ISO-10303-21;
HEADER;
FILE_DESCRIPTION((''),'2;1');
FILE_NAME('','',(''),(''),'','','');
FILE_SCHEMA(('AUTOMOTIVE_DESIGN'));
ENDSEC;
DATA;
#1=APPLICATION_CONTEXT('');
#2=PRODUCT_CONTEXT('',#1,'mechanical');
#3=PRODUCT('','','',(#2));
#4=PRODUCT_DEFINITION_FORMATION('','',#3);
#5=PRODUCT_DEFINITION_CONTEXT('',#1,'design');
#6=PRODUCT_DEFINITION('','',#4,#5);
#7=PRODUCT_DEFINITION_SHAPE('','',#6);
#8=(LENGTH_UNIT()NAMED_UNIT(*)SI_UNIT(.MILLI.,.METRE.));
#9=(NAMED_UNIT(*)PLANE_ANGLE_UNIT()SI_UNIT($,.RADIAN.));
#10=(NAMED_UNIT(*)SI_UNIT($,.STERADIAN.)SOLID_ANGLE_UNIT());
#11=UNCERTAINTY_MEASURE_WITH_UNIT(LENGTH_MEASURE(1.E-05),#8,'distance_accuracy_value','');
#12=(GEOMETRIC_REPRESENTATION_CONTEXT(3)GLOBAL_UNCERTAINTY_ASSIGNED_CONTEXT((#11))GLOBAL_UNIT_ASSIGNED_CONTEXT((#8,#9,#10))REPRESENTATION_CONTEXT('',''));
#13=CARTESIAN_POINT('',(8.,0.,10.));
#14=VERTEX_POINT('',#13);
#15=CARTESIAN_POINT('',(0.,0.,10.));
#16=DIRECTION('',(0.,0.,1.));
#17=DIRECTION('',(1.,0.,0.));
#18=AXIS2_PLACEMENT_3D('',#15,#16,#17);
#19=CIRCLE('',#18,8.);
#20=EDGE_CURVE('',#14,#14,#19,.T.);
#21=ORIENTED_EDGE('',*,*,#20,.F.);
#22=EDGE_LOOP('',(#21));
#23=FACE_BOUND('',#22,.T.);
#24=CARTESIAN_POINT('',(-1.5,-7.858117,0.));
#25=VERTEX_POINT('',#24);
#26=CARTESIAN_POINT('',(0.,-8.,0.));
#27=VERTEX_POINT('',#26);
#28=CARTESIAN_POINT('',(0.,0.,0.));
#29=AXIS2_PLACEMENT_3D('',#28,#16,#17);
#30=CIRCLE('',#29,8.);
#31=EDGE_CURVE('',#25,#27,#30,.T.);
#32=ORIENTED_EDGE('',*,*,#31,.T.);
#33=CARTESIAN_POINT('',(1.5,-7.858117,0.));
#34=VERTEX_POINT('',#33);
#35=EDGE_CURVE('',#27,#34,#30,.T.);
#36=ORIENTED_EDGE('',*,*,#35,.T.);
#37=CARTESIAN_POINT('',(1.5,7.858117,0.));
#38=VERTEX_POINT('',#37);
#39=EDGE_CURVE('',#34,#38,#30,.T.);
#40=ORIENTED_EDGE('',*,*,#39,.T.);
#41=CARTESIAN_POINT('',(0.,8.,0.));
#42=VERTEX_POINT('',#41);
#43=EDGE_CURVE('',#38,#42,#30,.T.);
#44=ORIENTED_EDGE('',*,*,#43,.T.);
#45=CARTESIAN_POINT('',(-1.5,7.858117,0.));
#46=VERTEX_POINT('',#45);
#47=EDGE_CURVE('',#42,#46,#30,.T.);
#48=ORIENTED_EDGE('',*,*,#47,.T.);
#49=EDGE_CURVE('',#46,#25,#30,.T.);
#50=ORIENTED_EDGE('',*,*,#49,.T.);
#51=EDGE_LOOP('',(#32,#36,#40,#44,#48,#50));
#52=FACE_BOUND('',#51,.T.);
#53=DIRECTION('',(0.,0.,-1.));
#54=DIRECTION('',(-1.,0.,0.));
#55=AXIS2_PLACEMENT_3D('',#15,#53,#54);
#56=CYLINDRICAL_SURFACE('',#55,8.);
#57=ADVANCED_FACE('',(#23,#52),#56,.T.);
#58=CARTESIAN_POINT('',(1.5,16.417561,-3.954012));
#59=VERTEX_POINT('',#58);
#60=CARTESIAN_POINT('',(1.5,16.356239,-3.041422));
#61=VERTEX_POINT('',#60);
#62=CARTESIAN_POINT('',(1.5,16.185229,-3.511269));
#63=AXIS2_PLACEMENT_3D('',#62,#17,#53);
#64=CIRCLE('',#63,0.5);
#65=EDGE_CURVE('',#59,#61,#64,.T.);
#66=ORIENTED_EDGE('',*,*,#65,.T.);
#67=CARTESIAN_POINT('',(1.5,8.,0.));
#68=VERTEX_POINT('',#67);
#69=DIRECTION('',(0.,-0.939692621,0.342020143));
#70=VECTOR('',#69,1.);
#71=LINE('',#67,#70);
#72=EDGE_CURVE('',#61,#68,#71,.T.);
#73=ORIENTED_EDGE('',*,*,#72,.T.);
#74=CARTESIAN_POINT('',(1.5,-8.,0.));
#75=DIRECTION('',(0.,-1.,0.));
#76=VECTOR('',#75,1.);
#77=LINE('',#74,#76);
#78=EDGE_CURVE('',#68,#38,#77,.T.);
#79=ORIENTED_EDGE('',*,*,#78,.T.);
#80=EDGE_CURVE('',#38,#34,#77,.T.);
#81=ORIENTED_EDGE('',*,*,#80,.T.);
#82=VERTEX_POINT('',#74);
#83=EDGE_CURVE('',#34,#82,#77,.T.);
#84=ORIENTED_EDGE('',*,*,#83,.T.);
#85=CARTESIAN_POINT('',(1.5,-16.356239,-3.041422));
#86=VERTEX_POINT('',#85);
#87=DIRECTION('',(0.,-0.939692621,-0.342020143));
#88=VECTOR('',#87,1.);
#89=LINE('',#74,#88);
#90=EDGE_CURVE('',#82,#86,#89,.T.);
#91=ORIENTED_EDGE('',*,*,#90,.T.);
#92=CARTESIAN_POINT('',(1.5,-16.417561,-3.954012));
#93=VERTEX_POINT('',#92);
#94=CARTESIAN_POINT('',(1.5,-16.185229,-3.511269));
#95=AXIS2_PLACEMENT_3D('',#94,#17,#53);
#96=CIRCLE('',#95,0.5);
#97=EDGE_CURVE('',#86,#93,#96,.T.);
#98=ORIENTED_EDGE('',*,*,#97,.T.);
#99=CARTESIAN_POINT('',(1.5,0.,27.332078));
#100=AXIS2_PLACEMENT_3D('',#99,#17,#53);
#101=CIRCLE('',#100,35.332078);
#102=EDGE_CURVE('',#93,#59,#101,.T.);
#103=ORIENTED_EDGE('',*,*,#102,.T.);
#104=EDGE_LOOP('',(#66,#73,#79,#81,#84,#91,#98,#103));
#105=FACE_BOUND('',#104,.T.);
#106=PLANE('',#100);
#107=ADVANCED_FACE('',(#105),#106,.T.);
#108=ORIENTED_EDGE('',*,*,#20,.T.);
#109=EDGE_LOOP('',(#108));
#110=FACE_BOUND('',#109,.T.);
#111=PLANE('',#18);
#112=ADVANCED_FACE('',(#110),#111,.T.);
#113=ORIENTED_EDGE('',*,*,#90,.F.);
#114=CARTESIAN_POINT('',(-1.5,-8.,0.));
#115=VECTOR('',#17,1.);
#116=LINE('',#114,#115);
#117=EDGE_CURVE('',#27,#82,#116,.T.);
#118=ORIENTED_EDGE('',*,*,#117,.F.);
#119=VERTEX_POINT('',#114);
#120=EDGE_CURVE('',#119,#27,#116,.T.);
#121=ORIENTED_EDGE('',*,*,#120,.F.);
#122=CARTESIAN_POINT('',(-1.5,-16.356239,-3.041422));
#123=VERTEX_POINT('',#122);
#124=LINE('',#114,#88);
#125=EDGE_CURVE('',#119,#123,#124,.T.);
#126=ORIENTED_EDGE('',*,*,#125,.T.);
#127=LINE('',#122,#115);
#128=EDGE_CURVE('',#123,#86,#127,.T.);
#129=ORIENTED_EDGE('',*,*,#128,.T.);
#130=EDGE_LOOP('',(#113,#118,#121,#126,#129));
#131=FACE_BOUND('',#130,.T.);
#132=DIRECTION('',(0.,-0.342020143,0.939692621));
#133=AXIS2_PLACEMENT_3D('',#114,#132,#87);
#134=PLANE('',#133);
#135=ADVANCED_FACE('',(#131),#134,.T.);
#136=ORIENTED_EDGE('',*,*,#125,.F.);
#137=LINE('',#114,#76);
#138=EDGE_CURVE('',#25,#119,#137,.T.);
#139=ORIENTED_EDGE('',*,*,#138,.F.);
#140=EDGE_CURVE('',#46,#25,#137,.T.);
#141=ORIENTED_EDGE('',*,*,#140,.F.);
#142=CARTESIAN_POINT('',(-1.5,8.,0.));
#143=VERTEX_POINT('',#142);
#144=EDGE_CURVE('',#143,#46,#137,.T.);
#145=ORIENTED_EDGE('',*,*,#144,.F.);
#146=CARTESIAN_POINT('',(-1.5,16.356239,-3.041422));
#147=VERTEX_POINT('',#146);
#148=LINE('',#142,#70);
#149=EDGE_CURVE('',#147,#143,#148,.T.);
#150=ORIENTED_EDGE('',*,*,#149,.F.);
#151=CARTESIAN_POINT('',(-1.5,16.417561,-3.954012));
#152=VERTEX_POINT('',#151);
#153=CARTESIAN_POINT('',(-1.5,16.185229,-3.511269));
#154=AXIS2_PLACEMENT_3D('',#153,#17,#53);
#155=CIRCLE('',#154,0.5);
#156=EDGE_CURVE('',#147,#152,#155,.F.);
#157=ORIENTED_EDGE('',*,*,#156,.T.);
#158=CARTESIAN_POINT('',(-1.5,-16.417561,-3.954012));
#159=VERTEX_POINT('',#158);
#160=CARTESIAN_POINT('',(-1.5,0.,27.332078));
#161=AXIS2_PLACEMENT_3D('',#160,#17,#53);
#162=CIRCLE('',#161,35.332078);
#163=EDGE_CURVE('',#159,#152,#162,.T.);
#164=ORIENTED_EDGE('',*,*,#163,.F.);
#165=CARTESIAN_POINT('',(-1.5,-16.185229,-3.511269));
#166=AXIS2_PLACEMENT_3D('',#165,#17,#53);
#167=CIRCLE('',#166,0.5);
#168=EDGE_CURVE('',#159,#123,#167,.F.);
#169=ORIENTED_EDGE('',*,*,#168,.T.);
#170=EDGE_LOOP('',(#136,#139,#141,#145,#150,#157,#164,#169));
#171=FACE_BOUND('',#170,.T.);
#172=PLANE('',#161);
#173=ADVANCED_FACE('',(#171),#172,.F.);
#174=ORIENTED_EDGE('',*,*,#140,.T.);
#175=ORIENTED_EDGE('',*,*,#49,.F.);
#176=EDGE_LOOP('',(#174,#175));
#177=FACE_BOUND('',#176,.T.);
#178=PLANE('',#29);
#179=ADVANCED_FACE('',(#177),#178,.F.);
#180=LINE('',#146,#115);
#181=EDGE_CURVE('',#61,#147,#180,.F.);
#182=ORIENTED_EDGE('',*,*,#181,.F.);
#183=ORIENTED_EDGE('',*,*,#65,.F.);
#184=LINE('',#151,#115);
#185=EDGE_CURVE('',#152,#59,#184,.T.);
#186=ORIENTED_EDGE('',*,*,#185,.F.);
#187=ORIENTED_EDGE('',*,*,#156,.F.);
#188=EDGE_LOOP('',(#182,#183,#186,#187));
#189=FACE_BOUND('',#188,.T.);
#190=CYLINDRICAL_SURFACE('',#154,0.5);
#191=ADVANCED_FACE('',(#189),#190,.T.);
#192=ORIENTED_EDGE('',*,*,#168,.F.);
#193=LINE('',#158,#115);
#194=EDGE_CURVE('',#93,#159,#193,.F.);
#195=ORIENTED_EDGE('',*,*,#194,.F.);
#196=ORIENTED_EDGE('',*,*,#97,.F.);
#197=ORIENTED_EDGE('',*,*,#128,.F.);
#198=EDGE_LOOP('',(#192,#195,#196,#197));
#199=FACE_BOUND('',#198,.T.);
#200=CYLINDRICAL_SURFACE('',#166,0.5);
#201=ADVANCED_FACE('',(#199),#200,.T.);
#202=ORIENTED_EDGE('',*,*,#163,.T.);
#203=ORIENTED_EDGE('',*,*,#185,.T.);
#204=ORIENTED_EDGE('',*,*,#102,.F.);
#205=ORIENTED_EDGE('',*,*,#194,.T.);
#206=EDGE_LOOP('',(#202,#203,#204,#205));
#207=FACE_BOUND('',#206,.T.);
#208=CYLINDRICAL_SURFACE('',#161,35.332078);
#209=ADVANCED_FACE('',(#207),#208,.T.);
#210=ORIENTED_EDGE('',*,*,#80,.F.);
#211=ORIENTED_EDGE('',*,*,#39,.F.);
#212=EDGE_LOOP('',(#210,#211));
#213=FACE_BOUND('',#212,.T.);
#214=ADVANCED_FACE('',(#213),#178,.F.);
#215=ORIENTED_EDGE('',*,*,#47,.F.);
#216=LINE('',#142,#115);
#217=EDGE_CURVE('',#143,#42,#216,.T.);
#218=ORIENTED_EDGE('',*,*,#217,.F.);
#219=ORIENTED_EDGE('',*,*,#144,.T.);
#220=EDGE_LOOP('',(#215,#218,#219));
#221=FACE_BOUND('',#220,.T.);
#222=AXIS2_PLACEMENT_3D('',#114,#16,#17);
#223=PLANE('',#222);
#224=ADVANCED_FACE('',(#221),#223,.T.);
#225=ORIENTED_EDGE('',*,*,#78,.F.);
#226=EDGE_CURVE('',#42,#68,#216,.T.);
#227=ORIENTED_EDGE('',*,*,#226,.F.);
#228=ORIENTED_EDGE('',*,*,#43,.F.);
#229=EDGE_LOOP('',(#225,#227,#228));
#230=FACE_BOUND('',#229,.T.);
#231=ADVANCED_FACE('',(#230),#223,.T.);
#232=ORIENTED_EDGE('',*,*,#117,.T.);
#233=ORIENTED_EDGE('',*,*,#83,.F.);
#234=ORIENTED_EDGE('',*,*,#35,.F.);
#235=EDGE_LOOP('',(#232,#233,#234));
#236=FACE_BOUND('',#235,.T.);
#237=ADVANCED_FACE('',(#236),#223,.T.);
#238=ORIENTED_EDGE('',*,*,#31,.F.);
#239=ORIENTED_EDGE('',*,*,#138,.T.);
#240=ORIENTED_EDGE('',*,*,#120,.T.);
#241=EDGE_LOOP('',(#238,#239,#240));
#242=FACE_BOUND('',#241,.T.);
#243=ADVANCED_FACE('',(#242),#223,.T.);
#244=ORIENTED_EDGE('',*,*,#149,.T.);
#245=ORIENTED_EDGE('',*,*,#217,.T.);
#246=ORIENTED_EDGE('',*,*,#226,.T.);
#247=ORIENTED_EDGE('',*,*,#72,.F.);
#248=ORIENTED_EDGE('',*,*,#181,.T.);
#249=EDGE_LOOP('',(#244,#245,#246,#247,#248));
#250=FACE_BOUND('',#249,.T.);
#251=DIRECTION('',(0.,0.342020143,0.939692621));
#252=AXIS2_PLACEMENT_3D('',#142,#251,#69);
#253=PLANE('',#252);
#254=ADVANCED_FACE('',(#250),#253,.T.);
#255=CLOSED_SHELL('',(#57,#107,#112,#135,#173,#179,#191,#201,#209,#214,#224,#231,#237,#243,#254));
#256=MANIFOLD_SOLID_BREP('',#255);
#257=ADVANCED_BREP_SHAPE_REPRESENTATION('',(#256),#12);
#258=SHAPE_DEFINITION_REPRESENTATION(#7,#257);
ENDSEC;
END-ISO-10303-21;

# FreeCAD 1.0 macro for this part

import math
import FreeCAD as App
import Part
import Sketcher

V = App.Vector
Q = App.Units.Quantity


def edges_at(feature, points):
    """Names of the edges that pass closest to the given points."""
    edges = feature.Shape.Edges
    near = lambda p: min(range(len(edges)), key=lambda i: edges[i].distToShape(Part.Vertex(*p))[0])
    return sorted({f"Edge{near(p) + 1}" for p in points})

doc = App.newDocument("Part")
params = doc.addObject("Spreadsheet::Sheet", "Params")
for row, (alias, value) in enumerate([
    ("sketch1_diameter", "16 mm"),
    ("pad1_length", "10 mm"),
    ("sketch2_width", "16 mm"),
    ("sketch2_length", "10 mm"),
    ("pad2_length", "1.5 mm"),
    ("pad2_length2", "1.5 mm"),
    ("fillet_radius", "0.5 mm"),
], start=1):
    params.set(f"A{row}", alias)
    params.set(f"B{row}", "=" + value)
    params.setAlias(f"B{row}", alias)

body = doc.addObject("PartDesign::Body", "Body")

# Sketch on XY plane
sketch1 = body.newObject("Sketcher::SketchObject", "Sketch")
sketch1.AttachmentSupport = (doc.getObject("XY_Plane"), [""])
sketch1.MapMode = "FlatFace"
sketch1.addGeometry(Part.Circle(V(0, 0, 0), V(0, 0, 1), 8), False)
sketch1.addConstraint([
    Sketcher.Constraint("Coincident", 0, 3, -1, 1),
    Sketcher.Constraint("Diameter", 0, Q("16 mm")),
])
sketch1.setExpression("Constraints[1]", "Params.sketch1_diameter")
pad1 = body.newObject("PartDesign::Pad", "Pad")
pad1.Profile = sketch1
pad1.setExpression("Length", "Params.pad1_length")

# Sketch on YZ plane
sketch2 = body.newObject("Sketcher::SketchObject", "Sketch001")
sketch2.AttachmentSupport = (doc.getObject("YZ_Plane"), [""])
sketch2.MapMode = "FlatFace"
sketch2.addGeometry([
    Part.LineSegment(V(8, 0, 0), V(-8, 0, 0)),
    Part.LineSegment(V(-8, 0, 0), V(-17, -3, 0)),
    Part.ArcOfCircle(Part.Circle(V(0, 27, 0), V(0, 0, 1), 35), math.radians(-119), math.radians(-61)),
    Part.LineSegment(V(17, -3, 0), V(8, 0, 0)),
], False)
sketch2.addConstraint([
    Sketcher.Constraint("Coincident", 0, 2, 1, 1),
    Sketcher.Constraint("Coincident", 1, 2, 2, 1),
    Sketcher.Constraint("Coincident", 2, 2, 3, 1),
    Sketcher.Constraint("Coincident", 3, 2, 0, 1),
    Sketcher.Constraint("Horizontal", 0),
    Sketcher.Constraint("Symmetric", 0, 2, 3, 2, -1, 1),
    Sketcher.Constraint("Symmetric", 1, 2, 2, 2, -2),
    Sketcher.Constraint("DistanceX", 0, 2, 0, 1, Q("16 mm")),
    Sketcher.Constraint("Angle", 1, Q("-160 deg")),
    Sketcher.Constraint("Distance", 1, Q("10 mm")),
    Sketcher.Constraint("Radius", 2, Q("35.332078 mm")),
])
sketch2.setExpression("Constraints[7]", "Params.sketch2_width")
sketch2.setExpression("Constraints[9]", "Params.sketch2_length")
pad2 = body.newObject("PartDesign::Pad", "Pad001")
pad2.Profile = sketch2
pad2.Type = "TwoLengths"
pad2.setExpression("Length", "Params.pad2_length")
pad2.setExpression("Length2", "Params.pad2_length2")
doc.recompute()

fillet = body.newObject("PartDesign::Fillet", "Fillet")
fillet.Base = (pad2, edges_at(pad2, [(0, 17.397, -3.42), (0, -17.397, -3.42)]))
fillet.setExpression("Radius", "Params.fillet_radius")

doc.recompute()
